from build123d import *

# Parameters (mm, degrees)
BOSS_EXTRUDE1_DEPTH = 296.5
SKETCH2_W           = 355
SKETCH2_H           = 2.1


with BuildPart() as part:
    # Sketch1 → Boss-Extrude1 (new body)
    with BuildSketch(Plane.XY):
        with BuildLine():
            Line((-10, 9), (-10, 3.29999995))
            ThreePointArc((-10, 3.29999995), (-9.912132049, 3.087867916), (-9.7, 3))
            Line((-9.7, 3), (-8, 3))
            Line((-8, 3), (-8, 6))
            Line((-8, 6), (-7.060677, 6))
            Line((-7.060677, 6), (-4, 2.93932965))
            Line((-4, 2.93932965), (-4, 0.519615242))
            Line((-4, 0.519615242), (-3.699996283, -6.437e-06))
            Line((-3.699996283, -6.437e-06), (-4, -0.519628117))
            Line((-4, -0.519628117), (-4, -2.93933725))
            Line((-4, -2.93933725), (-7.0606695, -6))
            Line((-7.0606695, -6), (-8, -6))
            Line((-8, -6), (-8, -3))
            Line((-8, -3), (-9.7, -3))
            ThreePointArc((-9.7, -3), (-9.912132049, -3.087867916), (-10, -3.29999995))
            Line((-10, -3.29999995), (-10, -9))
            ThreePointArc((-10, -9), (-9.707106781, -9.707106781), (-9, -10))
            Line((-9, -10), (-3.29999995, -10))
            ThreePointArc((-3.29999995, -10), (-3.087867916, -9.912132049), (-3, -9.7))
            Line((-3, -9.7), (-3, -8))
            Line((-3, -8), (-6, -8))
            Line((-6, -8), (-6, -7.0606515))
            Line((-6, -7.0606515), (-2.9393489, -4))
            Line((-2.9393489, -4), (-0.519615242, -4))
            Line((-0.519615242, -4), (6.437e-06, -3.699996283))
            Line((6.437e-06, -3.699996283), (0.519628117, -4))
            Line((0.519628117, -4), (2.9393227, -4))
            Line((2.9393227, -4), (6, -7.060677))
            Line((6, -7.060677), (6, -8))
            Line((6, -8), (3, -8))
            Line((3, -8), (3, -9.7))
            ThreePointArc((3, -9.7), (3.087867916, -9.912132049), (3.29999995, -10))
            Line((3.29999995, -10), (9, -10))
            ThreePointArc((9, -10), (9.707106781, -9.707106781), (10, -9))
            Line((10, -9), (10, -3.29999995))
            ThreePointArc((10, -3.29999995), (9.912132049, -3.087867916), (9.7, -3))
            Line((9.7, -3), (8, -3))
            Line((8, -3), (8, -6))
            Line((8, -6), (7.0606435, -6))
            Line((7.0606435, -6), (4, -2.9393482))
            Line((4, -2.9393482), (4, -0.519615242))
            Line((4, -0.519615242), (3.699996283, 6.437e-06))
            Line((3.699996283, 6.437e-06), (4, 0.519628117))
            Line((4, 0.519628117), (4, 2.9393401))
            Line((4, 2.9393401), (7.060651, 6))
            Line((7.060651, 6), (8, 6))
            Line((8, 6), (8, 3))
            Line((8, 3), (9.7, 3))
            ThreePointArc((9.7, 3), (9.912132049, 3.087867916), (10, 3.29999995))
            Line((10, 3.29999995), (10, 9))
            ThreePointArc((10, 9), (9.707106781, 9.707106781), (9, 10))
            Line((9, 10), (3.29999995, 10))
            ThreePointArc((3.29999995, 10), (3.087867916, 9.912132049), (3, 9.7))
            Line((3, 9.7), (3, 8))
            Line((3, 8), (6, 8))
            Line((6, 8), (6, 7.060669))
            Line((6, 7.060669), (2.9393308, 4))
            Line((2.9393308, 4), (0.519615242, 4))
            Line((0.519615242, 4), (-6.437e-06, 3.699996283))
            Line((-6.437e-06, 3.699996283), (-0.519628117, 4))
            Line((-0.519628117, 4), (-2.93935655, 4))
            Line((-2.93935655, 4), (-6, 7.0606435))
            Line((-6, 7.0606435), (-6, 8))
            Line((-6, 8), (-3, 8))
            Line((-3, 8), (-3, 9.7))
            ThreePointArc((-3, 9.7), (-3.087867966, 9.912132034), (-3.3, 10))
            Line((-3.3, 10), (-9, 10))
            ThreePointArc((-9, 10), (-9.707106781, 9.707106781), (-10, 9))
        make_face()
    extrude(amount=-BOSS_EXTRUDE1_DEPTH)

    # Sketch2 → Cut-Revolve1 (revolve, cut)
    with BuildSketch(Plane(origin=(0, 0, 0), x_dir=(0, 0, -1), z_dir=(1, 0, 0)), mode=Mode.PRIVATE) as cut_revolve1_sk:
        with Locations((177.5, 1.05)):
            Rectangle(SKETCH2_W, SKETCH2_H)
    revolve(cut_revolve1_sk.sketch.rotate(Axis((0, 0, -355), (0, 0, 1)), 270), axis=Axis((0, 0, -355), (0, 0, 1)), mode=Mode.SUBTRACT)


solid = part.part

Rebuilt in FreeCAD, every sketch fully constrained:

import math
import FreeCAD as App
import Part
import Sketcher

V = App.Vector
Q = App.Units.Quantity


def add_polygon(sketch, points):
    """Adds a closed chain of lines whose ends are joined by coincident constraints."""
    first, n = sketch.GeometryCount, len(points)
    for a, b in zip(points, points[1:] + points[:1]):
        sketch.addGeometry(Part.LineSegment(App.Vector(*a, 0), App.Vector(*b, 0)), False)
    for i in range(n):
        sketch.addConstraint(Sketcher.Constraint("Coincident", first + i, 2, first + (i + 1) % n, 1))

doc = App.newDocument("Part")
params = doc.addObject("Spreadsheet::Sheet", "Params")
for row, (alias, value) in enumerate([
    ("sketch1_radius", "1 mm"),
    ("sketch1_radius2", "0.3 mm"),
    ("sketch1_width", "3 mm"),
    ("sketch1_width2", "1.7 mm"),
    ("sketch1_width3", "5.7 mm"),
    ("pad1_length", "296.5 mm"),
    ("sketch2_height", "355 mm"),
    ("sketch2_width", "2.1 mm"),
    ("groove_angle", "360 deg"),
], start=1):
    params.set(f"A{row}", alias)
    params.set(f"B{row}", "=" + value)
    params.setAlias(f"B{row}", alias)

body = doc.addObject("PartDesign::Body", "Body")

# Sketch on XY plane
sketch1 = body.newObject("Sketcher::SketchObject", "Sketch")
sketch1.AttachmentSupport = (doc.getObject("XY_Plane"), [""])
sketch1.MapMode = "FlatFace"
sketch1.addGeometry([
    Part.LineSegment(V(-10, 9, 0), V(-10, 3.3, 0)),  # 0
    Part.ArcOfCircle(Part.Circle(V(-9.7, 3.3, 0), V(0, 0, 1), 0.3), math.radians(179.999989), math.radians(270.000021)),  # 1
    Part.LineSegment(V(-9.7, 3, 0), V(-8, 3, 0)),  # 2
    Part.LineSegment(V(-8, 3, 0), V(-8, 6, 0)),  # 3
    Part.LineSegment(V(-8, 6, 0), V(-7.060677, 6, 0)),  # 4
    Part.LineSegment(V(-7.060677, 6, 0), V(-4, 2.93933, 0)),  # 5
    Part.LineSegment(V(-4, 2.93933, 0), V(-4, 0.519615, 0)),  # 6
    Part.LineSegment(V(-4, 0.519615, 0), V(-3.699996, -0.000006, 0)),  # 7
    Part.LineSegment(V(-3.699996, -0.000006, 0), V(-4, -0.519628, 0)),  # 8
    Part.LineSegment(V(-4, -0.519628, 0), V(-4, -2.939337, 0)),  # 9
    Part.LineSegment(V(-4, -2.939337, 0), V(-7.06067, -6, 0)),  # 10
    Part.LineSegment(V(-7.06067, -6, 0), V(-8, -6, 0)),  # 11
    Part.LineSegment(V(-8, -6, 0), V(-8, -3, 0)),  # 12
    Part.LineSegment(V(-8, -3, 0), V(-9.7, -3, 0)),  # 13
    Part.ArcOfCircle(Part.Circle(V(-9.7, -3.3, 0), V(0, 0, 1), 0.3), math.radians(89.999979), math.radians(180.000011)),  # 14
    Part.LineSegment(V(-10, -3.3, 0), V(-10, -9, 0)),  # 15
    Part.ArcOfCircle(Part.Circle(V(-9, -9, 0), V(0, 0, 1), 1), math.radians(-180), math.radians(-90)),  # 16
    Part.LineSegment(V(-9, -10, 0), V(-3.3, -10, 0)),  # 17
    Part.ArcOfCircle(Part.Circle(V(-3.3, -9.7, 0), V(0, 0, 1), 0.3), math.radians(-90.000011), math.radians(0.000021)),  # 18
    Part.LineSegment(V(-3, -9.7, 0), V(-3, -8, 0)),  # 19
    Part.LineSegment(V(-3, -8, 0), V(-6, -8, 0)),  # 20
    Part.LineSegment(V(-6, -8, 0), V(-6, -7.060651, 0)),  # 21
    Part.LineSegment(V(-6, -7.060651, 0), V(-2.939349, -4, 0)),  # 22
    Part.LineSegment(V(-2.939349, -4, 0), V(-0.519615, -4, 0)),  # 23
    Part.LineSegment(V(-0.519615, -4, 0), V(0.000006, -3.699996, 0)),  # 24
    Part.LineSegment(V(0.000006, -3.699996, 0), V(0.519628, -4, 0)),  # 25
    Part.LineSegment(V(0.519628, -4, 0), V(2.939323, -4, 0)),  # 26
    Part.LineSegment(V(2.939323, -4, 0), V(6, -7.060677, 0)),  # 27
    Part.LineSegment(V(6, -7.060677, 0), V(6, -8, 0)),  # 28
    Part.LineSegment(V(6, -8, 0), V(3, -8, 0)),  # 29
    Part.LineSegment(V(3, -8, 0), V(3, -9.7, 0)),  # 30
    Part.ArcOfCircle(Part.Circle(V(3.3, -9.7, 0), V(0, 0, 1), 0.3), math.radians(179.999979), math.radians(270.000011)),  # 31
    Part.LineSegment(V(3.3, -10, 0), V(9, -10, 0)),  # 32
    Part.ArcOfCircle(Part.Circle(V(9, -9, 0), V(0, 0, 1), 1), math.radians(-90), math.radians(0)),  # 33
    Part.LineSegment(V(10, -9, 0), V(10, -3.3, 0)),  # 34
    Part.ArcOfCircle(Part.Circle(V(9.7, -3.3, 0), V(0, 0, 1), 0.3), math.radians(-0.000011), math.radians(90.000021)),  # 35
    Part.LineSegment(V(9.7, -3, 0), V(8, -3, 0)),  # 36
    Part.LineSegment(V(8, -3, 0), V(8, -6, 0)),  # 37
    Part.LineSegment(V(8, -6, 0), V(7.060644, -6, 0)),  # 38
    Part.LineSegment(V(7.060644, -6, 0), V(4, -2.939348, 0)),  # 39
    Part.LineSegment(V(4, -2.939348, 0), V(4, -0.519615, 0)),  # 40
    Part.LineSegment(V(4, -0.519615, 0), V(3.699996, 0.000006, 0)),  # 41
    Part.LineSegment(V(3.699996, 0.000006, 0), V(4, 0.519628, 0)),  # 42
    Part.LineSegment(V(4, 0.519628, 0), V(4, 2.93934, 0)),  # 43
    Part.LineSegment(V(4, 2.93934, 0), V(7.060651, 6, 0)),  # 44
    Part.LineSegment(V(7.060651, 6, 0), V(8, 6, 0)),  # 45
    Part.LineSegment(V(8, 6, 0), V(8, 3, 0)),  # 46
    Part.LineSegment(V(8, 3, 0), V(9.7, 3, 0)),  # 47
    Part.ArcOfCircle(Part.Circle(V(9.7, 3.3, 0), V(0, 0, 1), 0.3), math.radians(-90.000021), math.radians(0.000011)),  # 48
    Part.LineSegment(V(10, 3.3, 0), V(10, 9, 0)),  # 49
    Part.ArcOfCircle(Part.Circle(V(9, 9, 0), V(0, 0, 1), 1), math.radians(0), math.radians(90)),  # 50
    Part.LineSegment(V(9, 10, 0), V(3.3, 10, 0)),  # 51
    Part.ArcOfCircle(Part.Circle(V(3.3, 9.7, 0), V(0, 0, 1), 0.3), math.radians(89.999989), math.radians(180.000021)),  # 52
    Part.LineSegment(V(3, 9.7, 0), V(3, 8, 0)),  # 53
    Part.LineSegment(V(3, 8, 0), V(6, 8, 0)),  # 54
    Part.LineSegment(V(6, 8, 0), V(6, 7.060669, 0)),  # 55
    Part.LineSegment(V(6, 7.060669, 0), V(2.939331, 4, 0)),  # 56
    Part.LineSegment(V(2.939331, 4, 0), V(0.519615, 4, 0)),  # 57
    Part.LineSegment(V(0.519615, 4, 0), V(-0.000006, 3.699996, 0)),  # 58
    Part.LineSegment(V(-0.000006, 3.699996, 0), V(-0.519628, 4, 0)),  # 59
    Part.LineSegment(V(-0.519628, 4, 0), V(-2.939357, 4, 0)),  # 60
    Part.LineSegment(V(-2.939357, 4, 0), V(-6, 7.060644, 0)),  # 61
    Part.LineSegment(V(-6, 7.060644, 0), V(-6, 8, 0)),  # 62
    Part.LineSegment(V(-6, 8, 0), V(-3, 8, 0)),  # 63
    Part.LineSegment(V(-3, 8, 0), V(-3, 9.7, 0)),  # 64
    Part.ArcOfCircle(Part.Circle(V(-3.3, 9.7, 0), V(0, 0, 1), 0.3), math.radians(0), math.radians(90)),  # 65
    Part.LineSegment(V(-3.3, 10, 0), V(-9, 10, 0)),  # 66
    Part.ArcOfCircle(Part.Circle(V(-9, 9, 0), V(0, 0, 1), 1), math.radians(90), math.radians(180)),  # 67
], False)
sketch1.addConstraint([
    Sketcher.Constraint("Tangent", 0, 2, 1, 1),
    Sketcher.Constraint("Tangent", 1, 2, 2, 1),
    Sketcher.Constraint("Coincident", 2, 2, 3, 1),
    Sketcher.Constraint("Coincident", 3, 2, 4, 1),
    Sketcher.Constraint("Coincident", 4, 2, 5, 1),
    Sketcher.Constraint("Coincident", 5, 2, 6, 1),
    Sketcher.Constraint("Coincident", 6, 2, 7, 1),
    Sketcher.Constraint("Coincident", 7, 2, 8, 1),
    Sketcher.Constraint("Coincident", 8, 2, 9, 1),
    Sketcher.Constraint("Coincident", 9, 2, 10, 1),
    Sketcher.Constraint("Coincident", 10, 2, 11, 1),
    Sketcher.Constraint("Coincident", 11, 2, 12, 1),
    Sketcher.Constraint("Coincident", 12, 2, 13, 1),
    Sketcher.Constraint("Tangent", 13, 2, 14, 1),
    Sketcher.Constraint("Tangent", 14, 2, 15, 1),
    Sketcher.Constraint("Tangent", 15, 2, 16, 1),
    Sketcher.Constraint("Tangent", 16, 2, 17, 1),
    Sketcher.Constraint("Tangent", 17, 2, 18, 1),
    Sketcher.Constraint("Tangent", 18, 2, 19, 1),
    Sketcher.Constraint("Coincident", 19, 2, 20, 1),
    Sketcher.Constraint("Coincident", 20, 2, 21, 1),
    Sketcher.Constraint("Coincident", 21, 2, 22, 1),
    Sketcher.Constraint("Coincident", 22, 2, 23, 1),
    Sketcher.Constraint("Coincident", 23, 2, 24, 1),
    Sketcher.Constraint("Coincident", 24, 2, 25, 1),
    Sketcher.Constraint("Coincident", 25, 2, 26, 1),
    Sketcher.Constraint("Coincident", 26, 2, 27, 1),
    Sketcher.Constraint("Coincident", 27, 2, 28, 1),
    Sketcher.Constraint("Coincident", 28, 2, 29, 1),
    Sketcher.Constraint("Coincident", 29, 2, 30, 1),
    Sketcher.Constraint("Tangent", 30, 2, 31, 1),
    Sketcher.Constraint("Tangent", 31, 2, 32, 1),
    Sketcher.Constraint("Tangent", 32, 2, 33, 1),
    Sketcher.Constraint("Tangent", 33, 2, 34, 1),
    Sketcher.Constraint("Tangent", 34, 2, 35, 1),
    Sketcher.Constraint("Tangent", 35, 2, 36, 1),
    Sketcher.Constraint("Coincident", 36, 2, 37, 1),
    Sketcher.Constraint("Coincident", 37, 2, 38, 1),
    Sketcher.Constraint("Coincident", 38, 2, 39, 1),
    Sketcher.Constraint("Coincident", 39, 2, 40, 1),
    Sketcher.Constraint("Coincident", 40, 2, 41, 1),
    Sketcher.Constraint("Coincident", 41, 2, 42, 1),
    Sketcher.Constraint("Coincident", 42, 2, 43, 1),
    Sketcher.Constraint("Coincident", 43, 2, 44, 1),
    Sketcher.Constraint("Coincident", 44, 2, 45, 1),
    Sketcher.Constraint("Coincident", 45, 2, 46, 1),
    Sketcher.Constraint("Coincident", 46, 2, 47, 1),
    Sketcher.Constraint("Tangent", 47, 2, 48, 1),
    Sketcher.Constraint("Tangent", 48, 2, 49, 1),
    Sketcher.Constraint("Tangent", 49, 2, 50, 1),
    Sketcher.Constraint("Tangent", 50, 2, 51, 1),
    Sketcher.Constraint("Tangent", 51, 2, 52, 1),
    Sketcher.Constraint("Tangent", 52, 2, 53, 1),
    Sketcher.Constraint("Coincident", 53, 2, 54, 1),
    Sketcher.Constraint("Coincident", 54, 2, 55, 1),
    Sketcher.Constraint("Coincident", 55, 2, 56, 1),
    Sketcher.Constraint("Coincident", 56, 2, 57, 1),
    Sketcher.Constraint("Coincident", 57, 2, 58, 1),
    Sketcher.Constraint("Coincident", 58, 2, 59, 1),
    Sketcher.Constraint("Coincident", 59, 2, 60, 1),
    Sketcher.Constraint("Coincident", 60, 2, 61, 1),
    Sketcher.Constraint("Coincident", 61, 2, 62, 1),
    Sketcher.Constraint("Coincident", 62, 2, 63, 1),
    Sketcher.Constraint("Coincident", 63, 2, 64, 1),
    Sketcher.Constraint("Tangent", 64, 2, 65, 1),
    Sketcher.Constraint("Tangent", 65, 2, 66, 1),
    Sketcher.Constraint("Tangent", 66, 2, 67, 1),
    Sketcher.Constraint("Tangent", 67, 2, 0, 1),
    Sketcher.Constraint("Vertical", 0),
    Sketcher.Constraint("Horizontal", 2),
    Sketcher.Constraint("Vertical", 3),
    Sketcher.Constraint("Horizontal", 4),
    Sketcher.Constraint("Vertical", 6),
    Sketcher.Constraint("Vertical", 9),
    Sketcher.Constraint("Horizontal", 11),
    Sketcher.Constraint("Vertical", 12),
    Sketcher.Constraint("Horizontal", 13),
    Sketcher.Constraint("Vertical", 15),
    Sketcher.Constraint("Horizontal", 17),
    Sketcher.Constraint("Vertical", 19),
    Sketcher.Constraint("Horizontal", 20),
    Sketcher.Constraint("Vertical", 21),
    Sketcher.Constraint("Horizontal", 23),
    Sketcher.Constraint("Horizontal", 26),
    Sketcher.Constraint("Vertical", 28),
    Sketcher.Constraint("Horizontal", 29),
    Sketcher.Constraint("Vertical", 30),
    Sketcher.Constraint("Horizontal", 32),
    Sketcher.Constraint("Vertical", 34),
    Sketcher.Constraint("Horizontal", 36),
    Sketcher.Constraint("Vertical", 37),
    Sketcher.Constraint("Horizontal", 38),
    Sketcher.Constraint("Vertical", 40),
    Sketcher.Constraint("Vertical", 43),
    Sketcher.Constraint("Horizontal", 45),
    Sketcher.Constraint("Vertical", 46),
    Sketcher.Constraint("Horizontal", 47),
    Sketcher.Constraint("Vertical", 49),
    Sketcher.Constraint("Horizontal", 51),
    Sketcher.Constraint("Vertical", 53),
    Sketcher.Constraint("Horizontal", 54),
    Sketcher.Constraint("Vertical", 55),
    Sketcher.Constraint("Horizontal", 57),
    Sketcher.Constraint("Horizontal", 60),
    Sketcher.Constraint("Vertical", 62),
    Sketcher.Constraint("Horizontal", 63),
    Sketcher.Constraint("Vertical", 64),
    Sketcher.Constraint("Horizontal", 66),
    Sketcher.Constraint("Equal", 1, 14),
    Sketcher.Constraint("Equal", 14, 18),
    Sketcher.Constraint("Equal", 18, 31),
    Sketcher.Constraint("Equal", 16, 33),
    Sketcher.Constraint("Equal", 31, 35),
    Sketcher.Constraint("Equal", 35, 48),
    Sketcher.Constraint("Equal", 33, 50),
    Sketcher.Constraint("Equal", 48, 52),
    Sketcher.Constraint("Equal", 52, 65),
    Sketcher.Constraint("Equal", 50, 67),
    Sketcher.Constraint("Symmetric", 1, 3, 35, 3, -1, 1),
    Sketcher.Constraint("Symmetric", 14, 3, 48, 3, -1, 1),
    Sketcher.Constraint("Symmetric", 18, 3, 52, 3, -1, 1),
    Sketcher.Constraint("Symmetric", 31, 3, 65, 3, -1, 1),
    Sketcher.Constraint("Symmetric", 3, 2, 37, 2, -1, 1),
    Sketcher.Constraint("Symmetric", 6, 2, 40, 2, -1, 1),
    Sketcher.Constraint("Symmetric", 7, 2, 41, 2, -1, 1),
    Sketcher.Constraint("Symmetric", 8, 2, 42, 2, -1, 1),
    Sketcher.Constraint("Symmetric", 11, 2, 45, 2, -1, 1),
    Sketcher.Constraint("Symmetric", 20, 2, 54, 2, -1, 1),
    Sketcher.Constraint("Symmetric", 23, 2, 57, 2, -1, 1),
    Sketcher.Constraint("Symmetric", 24, 2, 58, 2, -1, 1),
    Sketcher.Constraint("Symmetric", 25, 2, 59, 2, -1, 1),
    Sketcher.Constraint("Symmetric", 28, 2, 62, 2, -1, 1),
    Sketcher.Constraint("Symmetric", 18, 3, 31, 3, -2),
    Sketcher.Constraint("Symmetric", 14, 3, 35, 3, -2),
    Sketcher.Constraint("Symmetric", 20, 2, 28, 2, -2),
    Sketcher.Constraint("Symmetric", 11, 2, 37, 2, -2),
    Sketcher.Constraint("Symmetric", 5, 2, 9, 2, -1),
    Sketcher.Constraint("Symmetric", 26, 2, 56, 2, -1),
    Sketcher.Constraint("Parallel", 10, 22),
    Sketcher.Constraint("Perpendicular", 7, 24),
    Sketcher.Constraint("Perpendicular", 8, 25),
    Sketcher.Constraint("Perpendicular", 22, 27),
    Sketcher.Constraint("Parallel", 27, 39),
    Sketcher.Constraint("Perpendicular", 27, 44),
    Sketcher.Constraint("Parallel", 44, 56),
    Sketcher.Constraint("Perpendicular", 56, 61),
    Sketcher.Constraint("Equal", 66, 0),
    Sketcher.Constraint("Equal", 63, 3),
    Sketcher.Constraint("Equal", 57, 6),
    Sketcher.Constraint("Equal", 47, 19),
    Sketcher.Constraint("Equal", 45, 21),
    Sketcher.Constraint("Equal", 4, 28),
    Sketcher.Constraint("Equal", 23, 40),
    Sketcher.Constraint("Equal", 11, 55),
    Sketcher.Constraint("Equal", 38, 62),
    Sketcher.Constraint("Equal", 7, 8),
    Sketcher.Constraint("Equal", 8, 24),
    Sketcher.Constraint("Radius", 16, Q("1 mm")),
    Sketcher.Constraint("Radius", 1, Q("0.3 mm")),
    Sketcher.Constraint("DistanceX", 20, 2, 20, 1, Q("3 mm")),
    Sketcher.Constraint("Angle", 7, Q("-60 deg")),
    Sketcher.Constraint("Angle", 22, Q("45.000004 deg")),
    Sketcher.Constraint("DistanceX", 2, 1, 2, 2, Q("1.7 mm")),
    Sketcher.Constraint("DistanceX", 17, 1, 17, 2, Q("5.7 mm")),
    Sketcher.Constraint("DistanceX", 16, 3, -1, 1, Q("9 mm")),
    Sketcher.Constraint("DistanceY", 16, 3, -1, 1, Q("9 mm")),
    Sketcher.Constraint("DistanceX", 5, 2, -1, 1, Q("4 mm")),
    Sketcher.Constraint("DistanceY", 22, 2, -1, 1, Q("4 mm")),
    Sketcher.Constraint("DistanceX", 11, 2, 11, 1, Q("0.93933 mm")),
    Sketcher.Constraint("DistanceX", 45, 1, 45, 2, Q("0.939349 mm")),
    Sketcher.Constraint("DistanceX", 60, 2, 60, 1, Q("2.419728 mm")),
    Sketcher.Constraint("DistanceX", 23, 1, 23, 2, Q("2.419734 mm")),
])
sketch1.setExpression("Constraints[157]", "Params.sketch1_radius")
sketch1.setExpression("Constraints[158]", "Params.sketch1_radius2")
sketch1.setExpression("Constraints[159]", "Params.sketch1_width")
sketch1.setExpression("Constraints[162]", "Params.sketch1_width2")
sketch1.setExpression("Constraints[163]", "Params.sketch1_width3")
pad1 = body.newObject("PartDesign::Pad", "Pad")
pad1.Profile = sketch1
pad1.setExpression("Length", "Params.pad1_length")
pad1.Reversed = True

# Sketch on YZ plane
sketch2 = body.newObject("Sketcher::SketchObject", "Sketch001")
sketch2.AttachmentSupport = (doc.getObject("YZ_Plane"), [""])
sketch2.MapMode = "FlatFace"
add_polygon(sketch2, [(2.1, 0), (0, 0), (0, -355), (2.1, -355)])  # lines 0-3
sketch2.addConstraint([
    Sketcher.Constraint("Horizontal", 0),
    Sketcher.Constraint("Vertical", 1),
    Sketcher.Constraint("Horizontal", 2),
    Sketcher.Constraint("Vertical", 3),
    Sketcher.Constraint("Coincident", 0, 2, -1, 1),
    Sketcher.Constraint("DistanceY", 1, 2, 1, 1, Q("355 mm")),
    Sketcher.Constraint("DistanceX", 0, 2, 0, 1, Q("2.1 mm")),
])
sketch2.setExpression("Constraints[9]", "Params.sketch2_height")
sketch2.setExpression("Constraints[10]", "Params.sketch2_width")
groove = body.newObject("PartDesign::Groove", "Groove")
groove.Profile = sketch2
groove.ReferenceAxis = (sketch2, ["V_Axis"])
groove.setExpression("Angle", "Params.groove_angle")

doc.recompute()
